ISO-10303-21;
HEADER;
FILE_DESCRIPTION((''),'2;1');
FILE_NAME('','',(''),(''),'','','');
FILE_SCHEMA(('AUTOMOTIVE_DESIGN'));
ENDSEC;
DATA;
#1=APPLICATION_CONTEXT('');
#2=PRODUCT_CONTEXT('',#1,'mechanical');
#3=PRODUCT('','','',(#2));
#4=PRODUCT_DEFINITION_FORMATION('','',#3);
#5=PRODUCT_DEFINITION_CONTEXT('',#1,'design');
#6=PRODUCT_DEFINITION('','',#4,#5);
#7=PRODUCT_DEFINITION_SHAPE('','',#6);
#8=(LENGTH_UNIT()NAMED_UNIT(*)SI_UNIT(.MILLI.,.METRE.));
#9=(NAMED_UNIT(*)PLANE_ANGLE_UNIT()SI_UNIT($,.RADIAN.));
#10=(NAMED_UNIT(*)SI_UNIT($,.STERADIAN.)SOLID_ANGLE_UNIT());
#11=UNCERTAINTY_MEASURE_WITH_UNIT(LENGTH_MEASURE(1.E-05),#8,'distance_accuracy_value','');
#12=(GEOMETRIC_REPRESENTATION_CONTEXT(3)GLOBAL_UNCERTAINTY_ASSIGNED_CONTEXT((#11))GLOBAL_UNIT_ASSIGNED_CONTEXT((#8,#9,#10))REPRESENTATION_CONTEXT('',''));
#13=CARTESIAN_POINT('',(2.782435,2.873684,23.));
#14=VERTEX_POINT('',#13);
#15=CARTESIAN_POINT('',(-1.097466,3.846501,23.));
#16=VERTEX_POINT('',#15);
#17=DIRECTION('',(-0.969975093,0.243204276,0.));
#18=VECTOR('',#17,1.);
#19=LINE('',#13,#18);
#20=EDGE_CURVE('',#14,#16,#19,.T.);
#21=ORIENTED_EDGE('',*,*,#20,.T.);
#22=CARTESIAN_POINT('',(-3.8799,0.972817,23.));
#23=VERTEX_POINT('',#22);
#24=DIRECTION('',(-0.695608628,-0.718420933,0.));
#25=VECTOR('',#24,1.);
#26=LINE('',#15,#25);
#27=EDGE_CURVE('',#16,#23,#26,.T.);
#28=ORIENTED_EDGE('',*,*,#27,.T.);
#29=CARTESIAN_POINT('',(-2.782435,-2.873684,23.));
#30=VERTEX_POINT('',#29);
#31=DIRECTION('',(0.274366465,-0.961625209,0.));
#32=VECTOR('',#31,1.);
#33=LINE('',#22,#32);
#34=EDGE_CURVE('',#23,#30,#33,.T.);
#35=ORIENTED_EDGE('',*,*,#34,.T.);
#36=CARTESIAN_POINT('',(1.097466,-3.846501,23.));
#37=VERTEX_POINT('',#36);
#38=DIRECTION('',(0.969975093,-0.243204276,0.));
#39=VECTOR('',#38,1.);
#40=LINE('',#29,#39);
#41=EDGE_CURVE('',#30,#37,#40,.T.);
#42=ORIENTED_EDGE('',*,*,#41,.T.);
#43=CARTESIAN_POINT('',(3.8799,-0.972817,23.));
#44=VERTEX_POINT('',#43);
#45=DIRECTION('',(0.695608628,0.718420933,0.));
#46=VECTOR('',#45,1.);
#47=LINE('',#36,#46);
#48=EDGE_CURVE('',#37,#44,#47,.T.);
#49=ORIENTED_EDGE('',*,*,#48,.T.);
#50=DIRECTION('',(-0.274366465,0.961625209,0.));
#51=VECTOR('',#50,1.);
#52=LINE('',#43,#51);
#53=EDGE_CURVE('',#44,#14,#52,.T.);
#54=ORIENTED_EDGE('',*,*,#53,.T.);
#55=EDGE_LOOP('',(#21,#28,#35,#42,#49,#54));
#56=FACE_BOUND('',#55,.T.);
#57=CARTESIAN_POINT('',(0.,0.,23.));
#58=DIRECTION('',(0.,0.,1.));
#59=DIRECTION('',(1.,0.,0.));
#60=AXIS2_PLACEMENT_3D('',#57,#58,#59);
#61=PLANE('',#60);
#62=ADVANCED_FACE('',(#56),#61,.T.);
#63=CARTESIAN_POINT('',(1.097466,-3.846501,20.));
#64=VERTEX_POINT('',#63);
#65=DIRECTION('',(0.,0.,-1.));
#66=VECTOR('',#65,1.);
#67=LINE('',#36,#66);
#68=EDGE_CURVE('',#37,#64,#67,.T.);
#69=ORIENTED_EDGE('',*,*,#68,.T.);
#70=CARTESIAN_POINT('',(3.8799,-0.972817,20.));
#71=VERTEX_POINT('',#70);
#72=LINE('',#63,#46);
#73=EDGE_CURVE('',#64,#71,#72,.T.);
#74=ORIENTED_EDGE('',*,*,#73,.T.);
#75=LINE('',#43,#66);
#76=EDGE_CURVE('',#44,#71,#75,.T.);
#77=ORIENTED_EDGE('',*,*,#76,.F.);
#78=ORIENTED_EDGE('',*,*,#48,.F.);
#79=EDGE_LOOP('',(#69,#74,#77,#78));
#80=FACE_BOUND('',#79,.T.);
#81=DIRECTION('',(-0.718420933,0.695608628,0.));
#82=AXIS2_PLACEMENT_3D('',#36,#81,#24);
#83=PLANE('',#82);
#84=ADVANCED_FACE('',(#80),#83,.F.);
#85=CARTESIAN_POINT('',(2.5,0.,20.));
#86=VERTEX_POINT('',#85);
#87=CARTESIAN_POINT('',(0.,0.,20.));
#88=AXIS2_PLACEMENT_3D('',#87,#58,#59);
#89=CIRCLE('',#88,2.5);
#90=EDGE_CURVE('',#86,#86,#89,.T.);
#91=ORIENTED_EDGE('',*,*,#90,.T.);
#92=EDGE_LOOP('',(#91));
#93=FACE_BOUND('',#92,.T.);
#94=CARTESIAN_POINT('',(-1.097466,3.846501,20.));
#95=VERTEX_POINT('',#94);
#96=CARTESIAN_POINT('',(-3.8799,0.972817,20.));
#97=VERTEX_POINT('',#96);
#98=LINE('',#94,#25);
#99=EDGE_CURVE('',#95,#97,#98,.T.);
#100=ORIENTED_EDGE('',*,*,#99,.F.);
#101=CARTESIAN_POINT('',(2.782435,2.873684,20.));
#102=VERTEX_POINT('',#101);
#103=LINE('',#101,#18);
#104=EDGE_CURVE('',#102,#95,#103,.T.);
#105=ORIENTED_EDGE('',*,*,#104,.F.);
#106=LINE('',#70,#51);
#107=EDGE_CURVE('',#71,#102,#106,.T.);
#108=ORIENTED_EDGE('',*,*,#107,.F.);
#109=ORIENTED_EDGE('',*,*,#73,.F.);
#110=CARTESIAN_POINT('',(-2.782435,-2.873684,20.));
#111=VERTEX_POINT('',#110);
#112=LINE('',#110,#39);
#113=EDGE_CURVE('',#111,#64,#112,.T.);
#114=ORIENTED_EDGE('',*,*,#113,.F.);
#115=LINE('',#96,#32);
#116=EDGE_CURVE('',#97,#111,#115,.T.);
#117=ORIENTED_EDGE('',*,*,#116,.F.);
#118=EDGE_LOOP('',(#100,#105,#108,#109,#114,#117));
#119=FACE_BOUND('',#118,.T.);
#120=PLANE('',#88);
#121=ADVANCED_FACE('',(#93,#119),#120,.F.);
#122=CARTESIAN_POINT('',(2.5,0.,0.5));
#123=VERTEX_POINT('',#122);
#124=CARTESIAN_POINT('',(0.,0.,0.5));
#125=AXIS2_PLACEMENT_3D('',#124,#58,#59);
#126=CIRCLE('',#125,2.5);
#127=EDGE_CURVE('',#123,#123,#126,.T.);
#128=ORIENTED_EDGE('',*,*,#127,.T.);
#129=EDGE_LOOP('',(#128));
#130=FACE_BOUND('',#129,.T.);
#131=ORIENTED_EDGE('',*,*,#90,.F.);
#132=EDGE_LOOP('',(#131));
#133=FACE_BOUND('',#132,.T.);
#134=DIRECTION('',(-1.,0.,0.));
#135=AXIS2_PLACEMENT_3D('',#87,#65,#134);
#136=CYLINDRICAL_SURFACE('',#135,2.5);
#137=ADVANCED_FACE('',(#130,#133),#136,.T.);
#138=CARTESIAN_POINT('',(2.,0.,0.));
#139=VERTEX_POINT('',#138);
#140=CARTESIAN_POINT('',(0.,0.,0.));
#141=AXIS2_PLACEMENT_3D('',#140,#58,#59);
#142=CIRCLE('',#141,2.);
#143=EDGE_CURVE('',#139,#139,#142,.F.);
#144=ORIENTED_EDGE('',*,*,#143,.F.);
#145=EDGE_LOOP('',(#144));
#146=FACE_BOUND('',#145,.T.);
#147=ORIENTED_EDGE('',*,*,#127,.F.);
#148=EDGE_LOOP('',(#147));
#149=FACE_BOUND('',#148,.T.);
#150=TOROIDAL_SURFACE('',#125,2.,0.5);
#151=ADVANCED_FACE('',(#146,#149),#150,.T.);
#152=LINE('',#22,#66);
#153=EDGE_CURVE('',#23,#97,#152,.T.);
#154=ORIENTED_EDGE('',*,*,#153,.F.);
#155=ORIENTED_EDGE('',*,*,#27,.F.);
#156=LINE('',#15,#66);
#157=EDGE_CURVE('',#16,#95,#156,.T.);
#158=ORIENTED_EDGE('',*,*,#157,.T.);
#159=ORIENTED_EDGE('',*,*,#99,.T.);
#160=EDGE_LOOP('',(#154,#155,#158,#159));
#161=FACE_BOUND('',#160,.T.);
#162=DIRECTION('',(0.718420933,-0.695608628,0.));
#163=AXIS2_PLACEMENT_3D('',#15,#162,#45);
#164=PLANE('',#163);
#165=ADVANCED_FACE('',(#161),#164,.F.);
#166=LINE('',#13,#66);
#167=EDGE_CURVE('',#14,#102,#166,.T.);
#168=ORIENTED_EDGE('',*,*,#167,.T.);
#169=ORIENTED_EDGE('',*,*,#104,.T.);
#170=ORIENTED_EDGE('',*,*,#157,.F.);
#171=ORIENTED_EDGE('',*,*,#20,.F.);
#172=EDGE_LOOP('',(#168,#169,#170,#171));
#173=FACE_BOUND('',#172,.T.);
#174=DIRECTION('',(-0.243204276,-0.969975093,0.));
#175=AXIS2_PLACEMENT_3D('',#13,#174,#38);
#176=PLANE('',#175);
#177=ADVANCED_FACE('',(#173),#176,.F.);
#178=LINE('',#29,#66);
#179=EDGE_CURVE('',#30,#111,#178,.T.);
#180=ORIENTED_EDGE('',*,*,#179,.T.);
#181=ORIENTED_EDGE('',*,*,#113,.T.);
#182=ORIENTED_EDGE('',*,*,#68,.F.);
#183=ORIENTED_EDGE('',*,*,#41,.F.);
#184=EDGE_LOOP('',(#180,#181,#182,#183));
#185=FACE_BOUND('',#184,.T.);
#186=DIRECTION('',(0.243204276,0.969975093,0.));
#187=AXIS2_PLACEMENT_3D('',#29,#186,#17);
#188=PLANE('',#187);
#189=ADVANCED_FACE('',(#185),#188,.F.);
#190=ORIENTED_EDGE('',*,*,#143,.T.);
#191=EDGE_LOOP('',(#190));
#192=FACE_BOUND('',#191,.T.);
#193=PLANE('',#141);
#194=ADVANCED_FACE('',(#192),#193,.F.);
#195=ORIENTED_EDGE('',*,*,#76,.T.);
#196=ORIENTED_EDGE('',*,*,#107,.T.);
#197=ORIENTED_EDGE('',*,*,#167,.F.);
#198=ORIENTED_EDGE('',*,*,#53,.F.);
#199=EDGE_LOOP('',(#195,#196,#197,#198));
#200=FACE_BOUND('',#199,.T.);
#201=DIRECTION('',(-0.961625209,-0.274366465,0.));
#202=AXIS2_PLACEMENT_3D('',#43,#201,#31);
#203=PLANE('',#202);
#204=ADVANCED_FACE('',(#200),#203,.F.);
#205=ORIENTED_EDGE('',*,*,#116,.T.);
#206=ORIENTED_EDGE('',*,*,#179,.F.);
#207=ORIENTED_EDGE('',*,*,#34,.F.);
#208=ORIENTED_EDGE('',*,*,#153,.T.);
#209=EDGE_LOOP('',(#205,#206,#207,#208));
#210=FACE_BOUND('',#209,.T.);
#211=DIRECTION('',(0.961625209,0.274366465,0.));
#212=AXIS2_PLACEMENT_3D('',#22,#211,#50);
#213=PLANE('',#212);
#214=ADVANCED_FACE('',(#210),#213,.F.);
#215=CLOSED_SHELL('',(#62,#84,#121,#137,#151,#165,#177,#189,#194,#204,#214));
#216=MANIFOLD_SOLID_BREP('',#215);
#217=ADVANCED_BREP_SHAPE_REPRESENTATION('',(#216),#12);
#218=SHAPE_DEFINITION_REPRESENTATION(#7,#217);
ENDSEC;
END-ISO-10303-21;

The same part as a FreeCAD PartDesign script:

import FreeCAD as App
import Part
import Sketcher

V = App.Vector


def edges_at(feature, points):
    """Names of the edges that pass closest to the given points."""
    edges = feature.Shape.Edges
    near = lambda p: min(range(len(edges)), key=lambda i: edges[i].distToShape(Part.Vertex(*p))[0])
    return sorted({f"Edge{near(p) + 1}" for p in points})

doc = App.newDocument("Part")
body = doc.addObject("PartDesign::Body", "Body")

sketch1 = body.newObject("Sketcher::SketchObject", "Sketch")
sketch1.AttachmentSupport = (doc.getObject("XY_Plane"), [""])
sketch1.MapMode = "FlatFace"
sketch1.addGeometry(Part.Circle(V(0, 0, 0), V(0, 0, 1), 2.5), False)
sketch1.addConstraint([
    Sketcher.Constraint("Coincident", 0, 3, -1, 1),
    Sketcher.Constraint("Diameter", 0, 5.0),
])
pad1 = body.newObject("PartDesign::Pad", "Pad")
pad1.Profile = sketch1
pad1.Length = 20

sketch2 = body.newObject("Sketcher::SketchObject", "Sketch001")
sketch2.AttachmentSupport = (doc.getObject("XY_Plane"), [""])
sketch2.MapMode = "FlatFace"
sketch2.AttachmentOffset = App.Placement(V(0, 0, 20), App.Rotation())
sketch2.addGeometry([
    Part.LineSegment(V(2.782435, 2.873684, 0), V(-1.097466, 3.846501, 0)),
    Part.LineSegment(V(-1.097466, 3.846501, 0), V(-3.8799, 0.972817, 0)),
    Part.LineSegment(V(-3.8799, 0.972817, 0), V(-2.782435, -2.873684, 0)),
    Part.LineSegment(V(-2.782435, -2.873684, 0), V(1.097466, -3.846501, 0)),
    Part.LineSegment(V(1.097466, -3.846501, 0), V(3.8799, -0.972817, 0)),
    Part.LineSegment(V(3.8799, -0.972817, 0), V(2.782435, 2.873684, 0)),
], False)
sketch2.addConstraint([
    Sketcher.Constraint("Coincident", 0, 2, 1, 1),
    Sketcher.Constraint("Coincident", 1, 2, 2, 1),
    Sketcher.Constraint("Coincident", 2, 2, 3, 1),
    Sketcher.Constraint("Coincident", 3, 2, 4, 1),
    Sketcher.Constraint("Coincident", 4, 2, 5, 1),
    Sketcher.Constraint("Coincident", 5, 2, 0, 1),
    Sketcher.Constraint("Symmetric", 0, 2, 3, 2, -1, 1),
    Sketcher.Constraint("Symmetric", 1, 2, 4, 2, -1, 1),
    Sketcher.Constraint("Symmetric", 2, 2, 5, 2, -1, 1),
    Sketcher.Constraint("Equal", 0, 1),
    Sketcher.Constraint("Equal", 1, 2),
    Sketcher.Constraint("Distance", 0, 4.0),
    Sketcher.Constraint("DistanceY", 3, 2, 0, 2, 7.693002),
    Sketcher.Constraint("DistanceX", 1, 2, -1, 1, 3.8799),
    Sketcher.Constraint("DistanceY", 2, 2, 1, 2, 3.846501),
])
pad2 = body.newObject("PartDesign::Pad", "Pad001")
pad2.Profile = sketch2
pad2.Length = 3
doc.recompute()

fillet = body.newObject("PartDesign::Fillet", "Fillet")
fillet.Base = (pad2, edges_at(pad2, [(-2.5, 0, 0)]))
fillet.Radius = 0.5

doc.recompute()
